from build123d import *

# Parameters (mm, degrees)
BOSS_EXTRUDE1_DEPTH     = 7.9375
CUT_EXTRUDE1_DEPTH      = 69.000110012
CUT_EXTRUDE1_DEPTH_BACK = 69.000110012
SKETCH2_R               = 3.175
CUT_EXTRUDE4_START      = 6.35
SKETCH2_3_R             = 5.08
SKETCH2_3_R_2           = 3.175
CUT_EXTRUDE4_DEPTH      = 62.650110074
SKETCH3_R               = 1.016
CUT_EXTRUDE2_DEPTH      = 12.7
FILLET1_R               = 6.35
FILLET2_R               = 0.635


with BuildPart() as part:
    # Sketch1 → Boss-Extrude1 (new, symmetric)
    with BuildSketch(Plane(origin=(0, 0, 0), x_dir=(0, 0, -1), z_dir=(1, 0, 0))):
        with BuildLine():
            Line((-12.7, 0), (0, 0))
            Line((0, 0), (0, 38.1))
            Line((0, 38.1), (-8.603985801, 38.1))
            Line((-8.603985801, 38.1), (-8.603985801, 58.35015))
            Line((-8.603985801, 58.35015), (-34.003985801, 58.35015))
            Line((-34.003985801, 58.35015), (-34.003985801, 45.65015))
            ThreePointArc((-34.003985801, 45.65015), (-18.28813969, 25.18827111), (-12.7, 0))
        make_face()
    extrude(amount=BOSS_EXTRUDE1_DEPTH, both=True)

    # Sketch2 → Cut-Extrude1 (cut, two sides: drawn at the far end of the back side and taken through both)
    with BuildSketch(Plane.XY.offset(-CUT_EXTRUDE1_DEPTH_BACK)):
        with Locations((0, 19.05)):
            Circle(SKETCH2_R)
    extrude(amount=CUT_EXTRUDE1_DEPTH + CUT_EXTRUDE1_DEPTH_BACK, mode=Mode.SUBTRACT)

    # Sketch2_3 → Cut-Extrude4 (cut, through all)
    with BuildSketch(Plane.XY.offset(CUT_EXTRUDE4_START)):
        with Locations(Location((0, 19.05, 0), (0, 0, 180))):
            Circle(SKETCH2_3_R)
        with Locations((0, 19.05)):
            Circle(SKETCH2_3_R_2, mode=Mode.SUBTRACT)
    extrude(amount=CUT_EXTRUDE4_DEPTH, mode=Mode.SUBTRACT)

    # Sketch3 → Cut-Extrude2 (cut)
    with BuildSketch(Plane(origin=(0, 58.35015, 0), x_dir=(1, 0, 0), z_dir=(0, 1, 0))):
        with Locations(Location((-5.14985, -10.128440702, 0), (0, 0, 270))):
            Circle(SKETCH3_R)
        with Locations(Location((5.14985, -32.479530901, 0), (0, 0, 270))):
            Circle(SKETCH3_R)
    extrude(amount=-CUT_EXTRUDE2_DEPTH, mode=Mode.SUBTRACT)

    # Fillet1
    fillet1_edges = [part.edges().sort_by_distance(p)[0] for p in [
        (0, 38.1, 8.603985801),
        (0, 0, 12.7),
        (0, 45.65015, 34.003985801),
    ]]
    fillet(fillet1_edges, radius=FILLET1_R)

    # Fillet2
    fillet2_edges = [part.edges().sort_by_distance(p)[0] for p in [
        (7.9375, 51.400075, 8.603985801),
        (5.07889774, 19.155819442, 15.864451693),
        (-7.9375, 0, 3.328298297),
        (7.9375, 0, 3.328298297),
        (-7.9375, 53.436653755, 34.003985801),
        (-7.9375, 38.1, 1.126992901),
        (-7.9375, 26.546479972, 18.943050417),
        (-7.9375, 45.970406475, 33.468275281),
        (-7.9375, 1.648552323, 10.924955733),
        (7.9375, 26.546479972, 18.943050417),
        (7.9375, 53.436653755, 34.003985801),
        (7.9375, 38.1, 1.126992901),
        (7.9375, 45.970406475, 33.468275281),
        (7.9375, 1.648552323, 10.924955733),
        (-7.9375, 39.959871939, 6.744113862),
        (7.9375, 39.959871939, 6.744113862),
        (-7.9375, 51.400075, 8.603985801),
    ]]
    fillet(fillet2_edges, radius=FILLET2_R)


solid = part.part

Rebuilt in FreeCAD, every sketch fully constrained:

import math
import FreeCAD as App
import Part
import Sketcher
Q = App.Units.Quantity


def edges_at(feature, points):
    """Names of the edges that pass closest to the given points."""
    edges = feature.Shape.Edges
    near = lambda p: min(range(len(edges)), key=lambda i: edges[i].distToShape(Part.Vertex(*p))[0])
    return sorted({f"Edge{near(p) + 1}" for p in points})

doc = App.newDocument("Part")
params = doc.addObject("Spreadsheet::Sheet", "Params")
for row, (alias, value) in enumerate([
    ("sketch1_height", "1 in"),
    ("sketch1_width", "1.5 in"),
    ("sketch1_width2", "0.5 in"),
    ("pad1_length", "0.625 in"),
    ("sketch2_diameter", "0.25 in"),
    ("sketch3_diameter", "0.4 in"),
    ("sketch3_diameter2", "0.25 in"),
    ("sketch4_diameter", "0.08 in"),
    ("pocket3_length", "0.5 in"),
    ("fillet_radius", "0.25 in"),
    ("fillet2_radius", "0.025 in"),
], start=1):
    params.set(f"A{row}", alias)
    params.set(f"B{row}", "=" + value)
    params.setAlias(f"B{row}", alias)

body = doc.addObject("PartDesign::Body", "Body")

# Sketch on YZ plane
sketch1 = body.newObject("Sketcher::SketchObject", "Sketch")
sketch1.AttachmentSupport = (doc.getObject("YZ_Plane"), [""])
sketch1.MapMode = "FlatFace"
sketch1.addGeometry([
    Part.LineSegment(App.Vector(0, 12.7, 0), App.Vector(0, 0, 0)),  # 0
    Part.LineSegment(App.Vector(0, 0, 0), App.Vector(38.1, 0, 0)),  # 1
    Part.LineSegment(App.Vector(38.1, 0, 0), App.Vector(38.1, 8.603986, 0)),  # 2
    Part.LineSegment(App.Vector(38.1, 8.603986, 0), App.Vector(58.35015, 8.603986, 0)),  # 3
    Part.LineSegment(App.Vector(58.35015, 8.603986, 0), App.Vector(58.35015, 34.003986, 0)),  # 4
    Part.LineSegment(App.Vector(58.35015, 34.003986, 0), App.Vector(45.65015, 34.003986, 0)),  # 5
    Part.ArcOfCircle(Part.Circle(App.Vector(0, 72.261531, 0), App.Vector(0, 0, 1), 59.561531), math.radians(-90), math.radians(-39.965012)),  # 6
], False)
sketch1.addConstraint([
    Sketcher.Constraint("Coincident", 0, 2, 1, 1),
    Sketcher.Constraint("Coincident", 1, 2, 2, 1),
    Sketcher.Constraint("Coincident", 2, 2, 3, 1),
    Sketcher.Constraint("Coincident", 3, 2, 4, 1),
    Sketcher.Constraint("Coincident", 4, 2, 5, 1),
    Sketcher.Constraint("Coincident", 5, 2, 6, 2),
    Sketcher.Constraint("Coincident", 6, 1, 0, 1),
    Sketcher.Constraint("Vertical", 0),
    Sketcher.Constraint("Horizontal", 1),
    Sketcher.Constraint("Vertical", 2),
    Sketcher.Constraint("Horizontal", 3),
    Sketcher.Constraint("Vertical", 4),
    Sketcher.Constraint("Horizontal", 5),
    Sketcher.Constraint("Coincident", 0, 2, -1, 1),
    Sketcher.Constraint("PointOnObject", 6, 3, -2),
    Sketcher.Constraint("Equal", 5, 0),
    Sketcher.Constraint("DistanceY", 4, 1, 4, 2, Q("1 in")),
    Sketcher.Constraint("DistanceX", 1, 1, 1, 2, Q("1.5 in")),
    Sketcher.Constraint("DistanceX", 5, 2, 5, 1, Q("0.5 in")),
    Sketcher.Constraint("Radius", 6, Q("59.561531 mm")),
    Sketcher.Constraint("DistanceX", 3, 1, 3, 2, Q("20.25015 mm")),
])
sketch1.setExpression("Constraints[16]", "Params.sketch1_height")
sketch1.setExpression("Constraints[17]", "Params.sketch1_width")
sketch1.setExpression("Constraints[18]", "Params.sketch1_width2")
pad1 = body.newObject("PartDesign::Pad", "Pad")
pad1.Profile = sketch1
pad1.setExpression("Length", "Params.pad1_length")
pad1.Midplane = True

# Sketch on XY plane
sketch2 = body.newObject("Sketcher::SketchObject", "Sketch001")
sketch2.AttachmentSupport = (doc.getObject("XY_Plane"), [""])
sketch2.MapMode = "FlatFace"
sketch2.addGeometry(Part.Circle(App.Vector(0, 19.05, 0), App.Vector(0, 0, 1), 3.175), False)
sketch2.addConstraint([
    Sketcher.Constraint("PointOnObject", 0, 3, -2),
    Sketcher.Constraint("Diameter", 0, Q("0.25 in")),
    Sketcher.Constraint("DistanceY", -1, 1, 0, 3, Q("0.75 in")),
])
sketch2.setExpression("Constraints[1]", "Params.sketch2_diameter")
pocket1 = body.newObject("PartDesign::Pocket", "Pocket")
pocket1.Profile = sketch2
pocket1.Type = "ThroughAll"
pocket1.Midplane = True

# Sketch on XY plane
sketch3 = body.newObject("Sketcher::SketchObject", "Sketch002")
sketch3.AttachmentSupport = (doc.getObject("XY_Plane"), [""])
sketch3.MapMode = "FlatFace"
sketch3.AttachmentOffset = App.Placement(App.Vector(0, 0, 0.25 * 25.4), App.Rotation())
sketch3.addGeometry([
    Part.Circle(App.Vector(0, 19.05, 0), App.Vector(0, 0, 1), 5.08),
    Part.Circle(App.Vector(0, 19.05, 0), App.Vector(0, 0, 1), 3.175),
], False)
sketch3.addConstraint([
    Sketcher.Constraint("Coincident", 1, 3, 0, 3),
    Sketcher.Constraint("PointOnObject", 0, 3, -2),
    Sketcher.Constraint("Diameter", 0, Q("0.4 in")),
    Sketcher.Constraint("Diameter", 1, Q("0.25 in")),
    Sketcher.Constraint("DistanceY", -1, 1, 0, 3, Q("0.75 in")),
])
sketch3.setExpression("Constraints[2]", "Params.sketch3_diameter")
sketch3.setExpression("Constraints[3]", "Params.sketch3_diameter2")
pocket2 = body.newObject("PartDesign::Pocket", "Pocket001")
pocket2.Profile = sketch3
pocket2.Type = "ThroughAll"
pocket2.Reversed = True

# Sketch on XZ plane
sketch4 = body.newObject("Sketcher::SketchObject", "Sketch003")
sketch4.AttachmentSupport = (doc.getObject("XZ_Plane"), [""])
sketch4.MapMode = "FlatFace"
sketch4.AttachmentOffset = App.Placement(App.Vector(0, 0, -58.35015), App.Rotation())
sketch4.addGeometry([
    Part.Circle(App.Vector(-5.14985, 10.128441, 0), App.Vector(0, 0, 1), 1.016),
    Part.Circle(App.Vector(5.14985, 32.479531, 0), App.Vector(0, 0, 1), 1.016),
], False)
sketch4.addConstraint([
    Sketcher.Constraint("Equal", 0, 1),
    Sketcher.Constraint("Diameter", 0, Q("0.08 in")),
    Sketcher.Constraint("DistanceX", 0, 3, 1, 3, Q("0.4055 in")),
    Sketcher.Constraint("DistanceX", 0, 3, -1, 1, Q("5.14985 mm")),
    Sketcher.Constraint("DistanceY", -1, 1, 0, 3, Q("10.128441 mm")),
    Sketcher.Constraint("DistanceY", -1, 1, 1, 3, Q("32.479531 mm")),
])
sketch4.setExpression("Constraints[1]", "Params.sketch4_diameter")
pocket3 = body.newObject("PartDesign::Pocket", "Pocket002")
pocket3.Profile = sketch4
pocket3.setExpression("Length", "Params.pocket3_length")
pocket3.Reversed = True
doc.recompute()

fillet = body.newObject("PartDesign::Fillet", "Fillet")
fillet.Base = (pocket3, edges_at(pocket3, [(0, 38.1, 8.604), (0, 0, 12.7), (0, 45.65, 34.004)]))
fillet.setExpression("Radius", "Params.fillet_radius")
doc.recompute()

fillet2 = body.newObject("PartDesign::Fillet", "Fillet001")
fillet2.Base = (fillet, edges_at(fillet, [
    (7.938, 51.4, 8.604),
    (5.079, 19.156, 15.864),
    (-7.938, 0, 3.328),
    (7.938, 0, 3.328),
    (-7.938, 53.437, 34.004),
    (-7.938, 38.1, 1.127),
    (-7.938, 26.546, 18.943),
    (-7.938, 45.97, 33.468),
    (-7.938, 1.649, 10.925),
    (7.938, 26.546, 18.943),
    (7.938, 53.437, 34.004),
    (7.938, 38.1, 1.127),
    (7.938, 45.97, 33.468),
    (7.938, 1.649, 10.925),
    (-7.938, 39.96, 6.744),
    (7.938, 39.96, 6.744),
    (-7.938, 51.4, 8.604),
]))
fillet2.setExpression("Radius", "Params.fillet2_radius")

doc.recompute()
